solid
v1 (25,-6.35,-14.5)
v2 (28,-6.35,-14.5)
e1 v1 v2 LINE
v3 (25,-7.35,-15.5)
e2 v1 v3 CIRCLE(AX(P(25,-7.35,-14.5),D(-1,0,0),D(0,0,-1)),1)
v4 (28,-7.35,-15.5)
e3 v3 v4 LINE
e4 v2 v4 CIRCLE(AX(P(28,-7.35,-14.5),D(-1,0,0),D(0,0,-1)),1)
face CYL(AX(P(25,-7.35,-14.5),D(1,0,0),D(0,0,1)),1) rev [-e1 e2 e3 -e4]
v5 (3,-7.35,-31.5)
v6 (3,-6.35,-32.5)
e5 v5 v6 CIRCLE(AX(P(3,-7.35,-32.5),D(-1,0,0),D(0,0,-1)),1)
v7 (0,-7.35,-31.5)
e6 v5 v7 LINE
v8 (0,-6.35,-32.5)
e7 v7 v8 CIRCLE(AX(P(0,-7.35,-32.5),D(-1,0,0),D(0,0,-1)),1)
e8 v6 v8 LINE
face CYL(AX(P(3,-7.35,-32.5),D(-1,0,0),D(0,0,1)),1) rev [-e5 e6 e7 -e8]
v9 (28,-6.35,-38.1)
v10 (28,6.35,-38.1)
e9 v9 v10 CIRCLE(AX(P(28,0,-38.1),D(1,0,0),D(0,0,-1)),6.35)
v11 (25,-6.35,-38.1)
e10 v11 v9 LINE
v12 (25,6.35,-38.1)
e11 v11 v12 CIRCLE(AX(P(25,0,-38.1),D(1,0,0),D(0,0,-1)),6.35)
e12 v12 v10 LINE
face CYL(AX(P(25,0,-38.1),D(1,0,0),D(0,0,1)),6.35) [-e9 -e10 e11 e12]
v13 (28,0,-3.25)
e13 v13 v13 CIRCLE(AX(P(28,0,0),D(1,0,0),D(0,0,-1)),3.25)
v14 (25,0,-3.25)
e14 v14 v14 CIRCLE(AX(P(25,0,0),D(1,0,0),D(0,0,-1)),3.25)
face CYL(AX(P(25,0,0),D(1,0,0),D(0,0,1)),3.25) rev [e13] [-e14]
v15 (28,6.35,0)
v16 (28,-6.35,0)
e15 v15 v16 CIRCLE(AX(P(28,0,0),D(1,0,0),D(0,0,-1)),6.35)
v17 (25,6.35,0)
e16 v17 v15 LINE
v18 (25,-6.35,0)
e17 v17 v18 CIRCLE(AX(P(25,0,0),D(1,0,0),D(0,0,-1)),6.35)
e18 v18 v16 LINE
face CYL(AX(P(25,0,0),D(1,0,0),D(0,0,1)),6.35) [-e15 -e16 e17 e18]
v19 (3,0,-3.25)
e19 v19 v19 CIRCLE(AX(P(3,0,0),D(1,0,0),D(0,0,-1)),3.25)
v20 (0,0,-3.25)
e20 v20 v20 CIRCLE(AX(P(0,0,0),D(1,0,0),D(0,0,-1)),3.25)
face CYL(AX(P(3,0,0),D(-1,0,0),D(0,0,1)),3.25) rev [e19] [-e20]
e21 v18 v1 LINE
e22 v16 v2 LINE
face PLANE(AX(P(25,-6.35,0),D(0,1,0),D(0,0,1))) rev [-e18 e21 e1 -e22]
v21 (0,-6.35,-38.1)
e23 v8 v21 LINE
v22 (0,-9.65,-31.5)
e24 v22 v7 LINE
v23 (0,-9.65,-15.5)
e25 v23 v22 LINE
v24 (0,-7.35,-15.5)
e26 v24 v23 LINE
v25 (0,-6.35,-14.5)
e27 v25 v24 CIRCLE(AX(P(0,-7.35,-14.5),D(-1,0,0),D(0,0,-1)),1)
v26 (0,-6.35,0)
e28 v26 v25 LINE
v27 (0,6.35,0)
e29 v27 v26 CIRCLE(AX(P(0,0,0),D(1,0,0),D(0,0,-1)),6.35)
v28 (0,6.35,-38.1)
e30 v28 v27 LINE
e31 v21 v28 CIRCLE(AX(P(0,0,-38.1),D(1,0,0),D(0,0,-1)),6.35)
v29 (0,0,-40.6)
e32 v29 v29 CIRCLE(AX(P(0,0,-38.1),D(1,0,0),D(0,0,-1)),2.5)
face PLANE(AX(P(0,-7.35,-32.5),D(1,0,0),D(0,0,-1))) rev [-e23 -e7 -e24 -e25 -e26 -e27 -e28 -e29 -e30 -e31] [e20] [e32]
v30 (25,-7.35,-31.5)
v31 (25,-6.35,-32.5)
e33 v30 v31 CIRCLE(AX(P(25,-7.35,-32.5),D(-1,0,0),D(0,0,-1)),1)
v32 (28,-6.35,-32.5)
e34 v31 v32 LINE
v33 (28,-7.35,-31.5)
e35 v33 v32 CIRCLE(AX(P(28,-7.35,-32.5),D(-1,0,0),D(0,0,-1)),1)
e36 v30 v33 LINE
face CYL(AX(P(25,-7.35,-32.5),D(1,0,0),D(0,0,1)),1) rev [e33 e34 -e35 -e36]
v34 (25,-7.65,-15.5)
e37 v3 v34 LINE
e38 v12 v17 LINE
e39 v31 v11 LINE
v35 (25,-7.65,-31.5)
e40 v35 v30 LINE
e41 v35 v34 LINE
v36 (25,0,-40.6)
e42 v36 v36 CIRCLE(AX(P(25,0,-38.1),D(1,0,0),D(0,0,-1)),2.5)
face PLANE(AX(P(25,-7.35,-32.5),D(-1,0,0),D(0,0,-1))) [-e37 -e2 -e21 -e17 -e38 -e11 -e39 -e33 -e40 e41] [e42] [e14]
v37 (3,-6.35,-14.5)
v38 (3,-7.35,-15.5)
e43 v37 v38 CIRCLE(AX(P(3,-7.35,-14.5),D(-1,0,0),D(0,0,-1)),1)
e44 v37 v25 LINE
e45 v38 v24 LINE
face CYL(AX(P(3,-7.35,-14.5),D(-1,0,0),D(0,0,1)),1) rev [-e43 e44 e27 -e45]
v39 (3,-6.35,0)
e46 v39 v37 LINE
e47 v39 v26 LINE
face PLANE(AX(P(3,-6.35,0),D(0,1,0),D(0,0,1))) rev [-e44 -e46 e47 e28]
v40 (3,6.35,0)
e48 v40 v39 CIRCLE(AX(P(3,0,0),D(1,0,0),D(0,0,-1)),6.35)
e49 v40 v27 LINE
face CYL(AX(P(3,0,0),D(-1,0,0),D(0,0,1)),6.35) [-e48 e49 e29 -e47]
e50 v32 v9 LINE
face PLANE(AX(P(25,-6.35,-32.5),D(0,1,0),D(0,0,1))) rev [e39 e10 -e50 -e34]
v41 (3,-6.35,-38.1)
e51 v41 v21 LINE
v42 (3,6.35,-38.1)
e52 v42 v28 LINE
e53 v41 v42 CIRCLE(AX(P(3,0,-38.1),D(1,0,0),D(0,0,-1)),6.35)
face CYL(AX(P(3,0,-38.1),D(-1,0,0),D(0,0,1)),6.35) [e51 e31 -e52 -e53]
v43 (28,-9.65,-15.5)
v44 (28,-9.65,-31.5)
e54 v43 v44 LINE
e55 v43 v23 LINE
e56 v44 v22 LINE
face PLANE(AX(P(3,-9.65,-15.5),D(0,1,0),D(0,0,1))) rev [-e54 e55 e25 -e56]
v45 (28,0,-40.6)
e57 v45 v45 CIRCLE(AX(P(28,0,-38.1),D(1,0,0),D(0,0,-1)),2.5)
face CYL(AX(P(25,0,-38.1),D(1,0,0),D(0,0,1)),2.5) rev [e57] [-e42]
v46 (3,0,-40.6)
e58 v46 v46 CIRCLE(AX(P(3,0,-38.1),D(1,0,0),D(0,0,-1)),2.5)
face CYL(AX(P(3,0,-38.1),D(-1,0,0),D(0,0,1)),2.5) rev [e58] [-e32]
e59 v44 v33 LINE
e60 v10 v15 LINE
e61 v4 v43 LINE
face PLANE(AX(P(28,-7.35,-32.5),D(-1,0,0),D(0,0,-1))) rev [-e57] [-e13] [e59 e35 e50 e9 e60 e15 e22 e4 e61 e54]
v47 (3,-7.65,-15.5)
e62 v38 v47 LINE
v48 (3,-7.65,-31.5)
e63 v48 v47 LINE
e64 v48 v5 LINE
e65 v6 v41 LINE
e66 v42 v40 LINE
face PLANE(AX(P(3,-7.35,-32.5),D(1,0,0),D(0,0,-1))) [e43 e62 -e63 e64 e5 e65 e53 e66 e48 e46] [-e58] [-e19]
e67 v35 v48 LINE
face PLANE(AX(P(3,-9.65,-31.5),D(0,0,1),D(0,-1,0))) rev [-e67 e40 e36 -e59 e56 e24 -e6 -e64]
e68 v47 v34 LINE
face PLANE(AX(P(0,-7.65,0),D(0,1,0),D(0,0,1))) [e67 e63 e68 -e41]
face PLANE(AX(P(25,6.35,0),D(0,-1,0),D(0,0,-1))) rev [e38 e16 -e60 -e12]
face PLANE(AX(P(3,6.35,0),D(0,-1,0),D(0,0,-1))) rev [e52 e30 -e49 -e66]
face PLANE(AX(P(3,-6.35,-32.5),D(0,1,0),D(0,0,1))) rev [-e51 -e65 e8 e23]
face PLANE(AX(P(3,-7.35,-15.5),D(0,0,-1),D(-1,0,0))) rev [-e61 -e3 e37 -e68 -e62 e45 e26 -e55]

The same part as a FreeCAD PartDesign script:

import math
import FreeCAD as App
import Part
import Sketcher
from FreeCAD import Vector
Q = App.Units.Quantity


def add_polygon(sketch, points):
    """Adds a closed chain of lines whose ends are joined by coincident constraints."""
    first, n = sketch.GeometryCount, len(points)
    for a, b in zip(points, points[1:] + points[:1]):
        sketch.addGeometry(Part.LineSegment(App.Vector(*a, 0), App.Vector(*b, 0)), False)
    for i in range(n):
        sketch.addConstraint(Sketcher.Constraint("Coincident", first + i, 2, first + (i + 1) % n, 1))

doc = App.newDocument("Part")
body = doc.addObject("PartDesign::Body", "Body")

sketch1 = body.newObject("Sketcher::SketchObject", "Sketch")
sketch1.AttachmentSupport = (doc.getObject("YZ_Plane"), [""])
sketch1.MapMode = "FlatFace"
sketch1.addGeometry(Part.LineSegment(Vector(6.3, -38.1, 0), Vector(6.3, 0, 0)), False)
sketch1.addGeometry(Part.ArcOfCircle(Part.Circle(Vector(0, 0, 0), Vector(0, 0, 1), 6.3), math.radians(0), math.radians(180)), False)
sketch1.addGeometry(Part.LineSegment(Vector(-6.3, 0, 0), Vector(-6.3, -14.5, 0)), False)
sketch1.addGeometry(Part.ArcOfCircle(Part.Circle(Vector(-7.4, -14.5, 0), Vector(0, 0, 1), 1), math.radians(-90), math.radians(0)), False)
sketch1.addGeometry(Part.LineSegment(Vector(-7.3, -15.5, 0), Vector(-9.7, -15.5, 0)), False)
sketch1.addGeometry(Part.LineSegment(Vector(-9.7, -15.5, 0), Vector(-9.7, -31.5, 0)), False)
sketch1.addGeometry(Part.LineSegment(Vector(-9.7, -31.5, 0), Vector(-7.3, -31.5, 0)), False)
sketch1.addGeometry(Part.ArcOfCircle(Part.Circle(Vector(-7.4, -32.5, 0), Vector(0, 0, 1), 1), math.radians(0), math.radians(90)), False)
sketch1.addGeometry(Part.LineSegment(Vector(-6.3, -32.5, 0), Vector(-6.3, -38.1, 0)), False)
sketch1.addGeometry(Part.ArcOfCircle(Part.Circle(Vector(0, -38.1, 0), Vector(0, 0, 1), 6.3), math.radians(180), math.radians(360)), False)
sketch1.addGeometry(Part.Circle(Vector(0, -38.1, 0), Vector(0, 0, 1), 2.5), False)
sketch1.addGeometry(Part.Circle(Vector(0, 0, 0), Vector(0, 0, 1), 3.2), False)
sketch1.addConstraint(Sketcher.Constraint("Tangent", 0, 2, 1, 1))
sketch1.addConstraint(Sketcher.Constraint("Tangent", 1, 2, 2, 1))
sketch1.addConstraint(Sketcher.Constraint("Tangent", 2, 2, 3, 2))
sketch1.addConstraint(Sketcher.Constraint("Tangent", 3, 1, 4, 1))
sketch1.addConstraint(Sketcher.Constraint("Coincident", 4, 2, 5, 1))
sketch1.addConstraint(Sketcher.Constraint("Coincident", 5, 2, 6, 1))
sketch1.addConstraint(Sketcher.Constraint("Tangent", 6, 2, 7, 2))
sketch1.addConstraint(Sketcher.Constraint("Tangent", 7, 1, 8, 1))
sketch1.addConstraint(Sketcher.Constraint("Tangent", 8, 2, 9, 1))
sketch1.addConstraint(Sketcher.Constraint("Tangent", 9, 2, 0, 1))
sketch1.addConstraint(Sketcher.Constraint("Vertical", 0))
sketch1.addConstraint(Sketcher.Constraint("Vertical", 2))
sketch1.addConstraint(Sketcher.Constraint("Horizontal", 4))
sketch1.addConstraint(Sketcher.Constraint("Vertical", 5))
sketch1.addConstraint(Sketcher.Constraint("Horizontal", 6))
sketch1.addConstraint(Sketcher.Constraint("Vertical", 8))
sketch1.addConstraint(Sketcher.Constraint("Coincident", 1, 3, -1, 1))
sketch1.addConstraint(Sketcher.Constraint("Coincident", 11, 3, -1, 1))
sketch1.addConstraint(Sketcher.Constraint("Coincident", 10, 3, 9, 3))
sketch1.addConstraint(Sketcher.Constraint("Equal", 3, 7))
sketch1.addConstraint(Sketcher.Constraint("Equal", 1, 9))
sketch1.addConstraint(Sketcher.Constraint("Diameter", 10, Q("5 mm")))
sketch1.addConstraint(Sketcher.Constraint("Radius", 3, Q("1 mm")))
sketch1.addConstraint(Sketcher.Constraint("Diameter", 11, Q("6.5 mm")))
sketch1.addConstraint(Sketcher.Constraint("DistanceY", 5, 2, 5, 1, Q("16 mm")))
sketch1.addConstraint(Sketcher.Constraint("Radius", 1, Q("6.35 mm")))
sketch1.addConstraint(Sketcher.Constraint("DistanceX", 4, 2, 4, 1, Q("2.3 mm")))
sketch1.addConstraint(Sketcher.Constraint("DistanceY", 0, 1, 0, 2, Q("38.1 mm")))
sketch1.addConstraint(Sketcher.Constraint("DistanceY", 2, 2, 2, 1, Q("14.5 mm")))
pad1 = body.newObject("PartDesign::Pad", "Pad")
pad1.Profile = sketch1
pad1.Length = 3

sketch2 = body.newObject("Sketcher::SketchObject", "Sketch001")
sketch2.AttachmentSupport = (doc.getObject("XZ_Plane"), [""])
sketch2.MapMode = "FlatFace"
sketch2.AttachmentOffset = App.Placement(Vector(0, 0, 9.65), App.Rotation())
add_polygon(sketch2, [(3, -32), (3, -16), (14, -16), (14, -32)])
sketch2.addConstraint(Sketcher.Constraint("Vertical", 0))
sketch2.addConstraint(Sketcher.Constraint("Horizontal", 1))
sketch2.addConstraint(Sketcher.Constraint("Vertical", 2))
sketch2.addConstraint(Sketcher.Constraint("Horizontal", 3))
sketch2.addConstraint(Sketcher.Constraint("DistanceX", 1, 1, 1, 2, Q("11 mm")))
sketch2.addConstraint(Sketcher.Constraint("DistanceY", 0, 1, 0, 2, Q("16 mm")))
sketch2.addConstraint(Sketcher.Constraint("DistanceX", -1, 1, 0, 2, Q("3 mm")))
sketch2.addConstraint(Sketcher.Constraint("DistanceY", 0, 2, -1, 1, Q("15.5 mm")))
pad2 = body.newObject("PartDesign::Pad", "Pad001")
pad2.Profile = sketch2
pad2.Length = 2
pad2.Reversed = True
body2 = doc.addObject("PartDesign::Body", "Body001")
doc.recompute()

body2.BaseFeature = body
doc.recompute()

mirroring = doc.addObject("Part::Mirroring", "Mirroring")
mirroring.Source = body
mirroring.Base = Vector(14, 0, 0)
mirroring.Normal = Vector(1, 0, 0)
body3 = doc.addObject("PartDesign::Body", "Body002")
body3.BaseFeature = mirroring
boolean = body2.newObject("PartDesign::Boolean", "Boolean")
boolean.Type = "Fuse"
boolean.addObjects([body3])
doc.recompute()
mirroring.Visibility = False

doc.recompute()
